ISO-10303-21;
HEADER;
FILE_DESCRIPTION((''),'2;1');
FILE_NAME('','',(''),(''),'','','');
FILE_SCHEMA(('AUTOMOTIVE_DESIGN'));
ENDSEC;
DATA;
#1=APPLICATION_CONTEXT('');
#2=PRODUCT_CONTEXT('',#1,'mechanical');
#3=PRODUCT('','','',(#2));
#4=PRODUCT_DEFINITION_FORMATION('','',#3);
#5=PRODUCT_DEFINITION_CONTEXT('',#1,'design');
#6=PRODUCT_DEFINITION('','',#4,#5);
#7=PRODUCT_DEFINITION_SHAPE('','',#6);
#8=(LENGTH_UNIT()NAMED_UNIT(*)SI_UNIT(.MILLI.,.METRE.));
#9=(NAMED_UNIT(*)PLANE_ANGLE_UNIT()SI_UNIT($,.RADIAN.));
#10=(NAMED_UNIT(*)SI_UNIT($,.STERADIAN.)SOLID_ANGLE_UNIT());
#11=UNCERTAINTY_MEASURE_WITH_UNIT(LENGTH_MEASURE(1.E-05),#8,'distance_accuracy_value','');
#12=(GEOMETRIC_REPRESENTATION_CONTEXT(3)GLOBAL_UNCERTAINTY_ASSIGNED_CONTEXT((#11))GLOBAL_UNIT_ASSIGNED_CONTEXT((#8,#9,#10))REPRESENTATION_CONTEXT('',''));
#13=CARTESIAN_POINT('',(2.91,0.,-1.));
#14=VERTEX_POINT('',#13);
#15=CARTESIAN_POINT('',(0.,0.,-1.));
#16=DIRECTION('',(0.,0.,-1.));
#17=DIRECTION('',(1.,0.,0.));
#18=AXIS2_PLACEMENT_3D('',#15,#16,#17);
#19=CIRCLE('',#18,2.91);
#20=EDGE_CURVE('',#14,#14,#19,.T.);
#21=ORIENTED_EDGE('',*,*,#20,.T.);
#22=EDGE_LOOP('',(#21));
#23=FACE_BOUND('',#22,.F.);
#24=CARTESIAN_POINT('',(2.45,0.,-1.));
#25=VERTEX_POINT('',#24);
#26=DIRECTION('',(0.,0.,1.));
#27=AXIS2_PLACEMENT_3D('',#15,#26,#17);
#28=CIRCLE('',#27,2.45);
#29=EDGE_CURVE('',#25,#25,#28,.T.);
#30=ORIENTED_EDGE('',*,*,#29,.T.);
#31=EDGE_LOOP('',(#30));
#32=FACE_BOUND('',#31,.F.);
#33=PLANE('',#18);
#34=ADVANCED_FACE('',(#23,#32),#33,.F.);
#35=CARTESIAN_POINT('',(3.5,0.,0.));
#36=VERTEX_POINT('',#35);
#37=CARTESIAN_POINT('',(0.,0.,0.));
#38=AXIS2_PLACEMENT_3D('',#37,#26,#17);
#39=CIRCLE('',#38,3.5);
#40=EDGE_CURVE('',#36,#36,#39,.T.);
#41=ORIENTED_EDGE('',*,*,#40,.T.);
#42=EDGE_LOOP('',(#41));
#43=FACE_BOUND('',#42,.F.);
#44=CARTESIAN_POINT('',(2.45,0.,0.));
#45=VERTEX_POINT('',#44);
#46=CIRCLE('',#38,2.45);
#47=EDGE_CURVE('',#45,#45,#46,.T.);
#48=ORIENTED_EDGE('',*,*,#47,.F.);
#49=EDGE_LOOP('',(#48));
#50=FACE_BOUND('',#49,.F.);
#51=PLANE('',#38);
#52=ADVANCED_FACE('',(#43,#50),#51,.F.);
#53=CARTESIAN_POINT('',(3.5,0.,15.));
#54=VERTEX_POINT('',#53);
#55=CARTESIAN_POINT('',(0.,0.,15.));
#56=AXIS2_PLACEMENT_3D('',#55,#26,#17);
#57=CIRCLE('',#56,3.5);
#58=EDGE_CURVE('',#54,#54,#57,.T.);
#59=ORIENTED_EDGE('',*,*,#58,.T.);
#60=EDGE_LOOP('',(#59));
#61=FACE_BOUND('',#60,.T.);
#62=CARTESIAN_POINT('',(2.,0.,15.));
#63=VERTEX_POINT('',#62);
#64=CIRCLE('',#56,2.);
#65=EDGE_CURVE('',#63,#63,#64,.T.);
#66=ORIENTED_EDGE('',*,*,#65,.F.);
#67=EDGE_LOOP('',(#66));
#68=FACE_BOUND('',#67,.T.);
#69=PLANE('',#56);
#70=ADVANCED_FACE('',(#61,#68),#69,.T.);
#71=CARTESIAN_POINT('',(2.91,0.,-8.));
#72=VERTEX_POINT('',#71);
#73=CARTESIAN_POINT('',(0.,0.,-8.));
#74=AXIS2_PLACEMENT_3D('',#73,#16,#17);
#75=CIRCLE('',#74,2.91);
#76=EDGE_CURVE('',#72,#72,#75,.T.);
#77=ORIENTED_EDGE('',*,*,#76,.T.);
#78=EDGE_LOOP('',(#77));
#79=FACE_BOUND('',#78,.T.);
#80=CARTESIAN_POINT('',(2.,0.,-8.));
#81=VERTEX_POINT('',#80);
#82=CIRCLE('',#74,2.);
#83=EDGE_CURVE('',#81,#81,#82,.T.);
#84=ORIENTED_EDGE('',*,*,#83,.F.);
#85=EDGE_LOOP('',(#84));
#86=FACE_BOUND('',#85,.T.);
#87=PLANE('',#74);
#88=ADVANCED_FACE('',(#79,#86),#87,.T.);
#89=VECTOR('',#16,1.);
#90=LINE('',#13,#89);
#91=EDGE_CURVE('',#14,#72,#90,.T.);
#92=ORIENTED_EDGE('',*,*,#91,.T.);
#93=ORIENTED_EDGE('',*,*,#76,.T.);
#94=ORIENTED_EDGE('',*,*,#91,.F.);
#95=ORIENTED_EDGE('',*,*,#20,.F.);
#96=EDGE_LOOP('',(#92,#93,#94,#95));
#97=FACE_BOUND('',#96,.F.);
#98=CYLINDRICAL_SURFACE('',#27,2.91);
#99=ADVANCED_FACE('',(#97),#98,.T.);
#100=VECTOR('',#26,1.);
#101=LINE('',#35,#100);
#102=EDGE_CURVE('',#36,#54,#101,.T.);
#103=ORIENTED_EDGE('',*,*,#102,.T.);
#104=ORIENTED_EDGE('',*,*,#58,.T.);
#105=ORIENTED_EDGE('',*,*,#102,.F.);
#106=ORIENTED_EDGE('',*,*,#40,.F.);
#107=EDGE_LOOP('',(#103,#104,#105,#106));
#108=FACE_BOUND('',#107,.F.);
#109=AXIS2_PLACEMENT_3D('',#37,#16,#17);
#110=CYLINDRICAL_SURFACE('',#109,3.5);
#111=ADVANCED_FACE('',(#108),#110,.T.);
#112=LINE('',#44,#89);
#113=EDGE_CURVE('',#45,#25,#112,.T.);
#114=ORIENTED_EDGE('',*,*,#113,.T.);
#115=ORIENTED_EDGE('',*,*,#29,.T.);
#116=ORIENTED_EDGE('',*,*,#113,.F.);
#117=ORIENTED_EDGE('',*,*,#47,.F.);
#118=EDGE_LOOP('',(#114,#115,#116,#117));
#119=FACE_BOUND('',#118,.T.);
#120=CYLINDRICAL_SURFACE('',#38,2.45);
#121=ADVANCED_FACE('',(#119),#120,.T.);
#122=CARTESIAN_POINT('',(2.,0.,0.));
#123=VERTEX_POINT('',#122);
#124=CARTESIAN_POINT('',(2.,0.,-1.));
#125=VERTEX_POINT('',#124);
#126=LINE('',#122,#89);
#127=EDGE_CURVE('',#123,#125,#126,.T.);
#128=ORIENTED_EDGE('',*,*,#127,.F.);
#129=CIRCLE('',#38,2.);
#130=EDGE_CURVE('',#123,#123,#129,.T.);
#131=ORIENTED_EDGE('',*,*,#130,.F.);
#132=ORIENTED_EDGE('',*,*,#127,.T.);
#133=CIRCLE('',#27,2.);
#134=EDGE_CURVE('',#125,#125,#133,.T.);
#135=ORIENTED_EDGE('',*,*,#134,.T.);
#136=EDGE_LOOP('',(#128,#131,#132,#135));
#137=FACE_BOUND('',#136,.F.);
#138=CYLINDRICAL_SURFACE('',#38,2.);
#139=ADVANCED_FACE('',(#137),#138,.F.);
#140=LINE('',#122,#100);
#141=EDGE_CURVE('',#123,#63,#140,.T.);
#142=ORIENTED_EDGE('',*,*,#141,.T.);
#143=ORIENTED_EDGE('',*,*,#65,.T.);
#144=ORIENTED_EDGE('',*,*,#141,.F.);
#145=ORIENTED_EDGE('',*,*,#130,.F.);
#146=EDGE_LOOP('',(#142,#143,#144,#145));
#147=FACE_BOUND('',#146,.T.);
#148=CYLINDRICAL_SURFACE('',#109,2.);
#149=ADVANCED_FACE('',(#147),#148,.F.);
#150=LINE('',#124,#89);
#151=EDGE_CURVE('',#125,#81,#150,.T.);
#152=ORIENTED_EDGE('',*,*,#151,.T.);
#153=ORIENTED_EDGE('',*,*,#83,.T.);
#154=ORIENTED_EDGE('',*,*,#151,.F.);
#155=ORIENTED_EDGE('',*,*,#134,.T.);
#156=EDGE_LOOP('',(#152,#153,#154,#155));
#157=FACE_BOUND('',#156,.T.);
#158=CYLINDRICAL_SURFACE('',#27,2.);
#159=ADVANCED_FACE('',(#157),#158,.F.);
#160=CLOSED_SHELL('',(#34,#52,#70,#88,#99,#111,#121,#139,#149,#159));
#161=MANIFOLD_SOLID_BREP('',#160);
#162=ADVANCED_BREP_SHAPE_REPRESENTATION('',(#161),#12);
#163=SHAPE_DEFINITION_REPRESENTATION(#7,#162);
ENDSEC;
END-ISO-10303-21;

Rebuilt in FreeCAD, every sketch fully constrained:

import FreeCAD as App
import Part
import Sketcher

doc = App.newDocument("Part")
params = doc.addObject("Spreadsheet::Sheet", "Params")
for row, (alias, value) in enumerate([
    ("sketch1_diameter", "7 mm"),
    ("sketch1_diameter2", "4 mm"),
    ("pad1_length", "15 mm"),
    ("sketch2_diameter", "4 mm"),
    ("sketch2_diameter2", "4.9 mm"),
    ("pad2_length", "1 mm"),
    ("sketch3_diameter", "4 mm"),
    ("sketch3_diameter2", "5.82 mm"),
    ("pad3_length", "7 mm"),
], start=1):
    params.set(f"A{row}", alias)
    params.set(f"B{row}", "=" + value)
    params.setAlias(f"B{row}", alias)

body = doc.addObject("PartDesign::Body", "Body")

sketch1 = body.newObject("Sketcher::SketchObject", "Sketch")
sketch1.AttachmentSupport = (doc.getObject("XY_Plane"), [""])
sketch1.MapMode = "FlatFace"
sketch1.addGeometry([
    Part.Circle(App.Vector(0, 0, 0), App.Vector(0, 0, 1), 3.5),
    Part.Circle(App.Vector(0, 0, 0), App.Vector(0, 0, 1), 2),
], False)
sketch1.addConstraint([
    Sketcher.Constraint("Coincident", 0, 3, -1, 1),
    Sketcher.Constraint("Coincident", 1, 3, -1, 1),
    Sketcher.Constraint("Diameter", 0, 7.0),
    Sketcher.Constraint("Diameter", 1, 4.0),
])
sketch1.setExpression("Constraints[2]", "Params.sketch1_diameter")
sketch1.setExpression("Constraints[3]", "Params.sketch1_diameter2")
pad1 = body.newObject("PartDesign::Pad", "Pad")
pad1.Profile = sketch1
pad1.setExpression("Length", "Params.pad1_length")

sketch2 = body.newObject("Sketcher::SketchObject", "Sketch001")
sketch2.AttachmentSupport = (doc.getObject("XY_Plane"), [""])
sketch2.MapMode = "FlatFace"
sketch2.addGeometry([
    Part.Circle(App.Vector(0, 0, 0), App.Vector(0, 0, 1), 2.5),
    Part.Circle(App.Vector(0, 0, 0), App.Vector(0, 0, 1), 2),
], False)
sketch2.addConstraint([
    Sketcher.Constraint("Coincident", 0, 3, -1, 1),
    Sketcher.Constraint("Coincident", 1, 3, -1, 1),
    Sketcher.Constraint("Diameter", 1, 4.0),
    Sketcher.Constraint("Diameter", 0, 4.9),
])
sketch2.setExpression("Constraints[2]", "Params.sketch2_diameter")
sketch2.setExpression("Constraints[3]", "Params.sketch2_diameter2")
pad2 = body.newObject("PartDesign::Pad", "Pad001")
pad2.Profile = sketch2
pad2.setExpression("Length", "Params.pad2_length")
pad2.Reversed = True

sketch3 = body.newObject("Sketcher::SketchObject", "Sketch002")
sketch3.AttachmentSupport = (doc.getObject("XY_Plane"), [""])
sketch3.MapMode = "FlatFace"
sketch3.AttachmentOffset = App.Placement(App.Vector(0, 0, -1), App.Rotation())
sketch3.addGeometry([
    Part.Circle(App.Vector(0, 0, 0), App.Vector(0, 0, 1), 2.9),
    Part.Circle(App.Vector(0, 0, 0), App.Vector(0, 0, 1), 2),
], False)
sketch3.addConstraint([
    Sketcher.Constraint("Coincident", 0, 3, -1, 1),
    Sketcher.Constraint("Coincident", 1, 3, -1, 1),
    Sketcher.Constraint("Diameter", 1, 4.0),
    Sketcher.Constraint("Diameter", 0, 5.82),
])
sketch3.setExpression("Constraints[2]", "Params.sketch3_diameter")
sketch3.setExpression("Constraints[3]", "Params.sketch3_diameter2")
pad3 = body.newObject("PartDesign::Pad", "Pad002")
pad3.Profile = sketch3
pad3.setExpression("Length", "Params.pad3_length")
pad3.Reversed = True

doc.recompute()
